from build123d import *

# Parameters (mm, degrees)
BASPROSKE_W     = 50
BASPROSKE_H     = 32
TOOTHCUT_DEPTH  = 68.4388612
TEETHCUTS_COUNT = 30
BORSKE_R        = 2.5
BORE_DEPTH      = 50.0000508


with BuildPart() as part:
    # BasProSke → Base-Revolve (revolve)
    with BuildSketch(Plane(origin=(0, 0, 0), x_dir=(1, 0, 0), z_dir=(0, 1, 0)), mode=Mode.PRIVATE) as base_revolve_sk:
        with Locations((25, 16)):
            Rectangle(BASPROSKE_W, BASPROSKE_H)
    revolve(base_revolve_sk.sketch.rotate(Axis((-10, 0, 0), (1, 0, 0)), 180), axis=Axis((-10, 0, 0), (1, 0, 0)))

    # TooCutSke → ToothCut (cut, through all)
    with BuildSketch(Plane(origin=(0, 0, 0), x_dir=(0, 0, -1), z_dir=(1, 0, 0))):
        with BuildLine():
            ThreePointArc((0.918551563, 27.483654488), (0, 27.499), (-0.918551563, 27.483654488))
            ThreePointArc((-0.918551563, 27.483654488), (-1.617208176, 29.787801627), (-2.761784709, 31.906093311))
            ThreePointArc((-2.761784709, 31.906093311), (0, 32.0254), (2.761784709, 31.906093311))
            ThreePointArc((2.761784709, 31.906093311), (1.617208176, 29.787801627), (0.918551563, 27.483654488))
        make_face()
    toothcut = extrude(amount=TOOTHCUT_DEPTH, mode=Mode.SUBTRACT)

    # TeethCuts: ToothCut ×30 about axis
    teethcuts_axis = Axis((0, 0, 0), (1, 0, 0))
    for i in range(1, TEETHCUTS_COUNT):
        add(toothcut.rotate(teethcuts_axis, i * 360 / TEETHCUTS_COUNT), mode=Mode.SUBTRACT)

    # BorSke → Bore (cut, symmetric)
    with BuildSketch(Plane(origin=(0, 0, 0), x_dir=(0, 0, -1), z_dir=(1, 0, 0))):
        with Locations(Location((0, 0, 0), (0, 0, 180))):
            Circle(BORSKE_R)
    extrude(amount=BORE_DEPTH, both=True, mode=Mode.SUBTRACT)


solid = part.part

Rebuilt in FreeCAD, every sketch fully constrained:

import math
import FreeCAD as App
import Part
import Sketcher
Q = App.Units.Quantity

doc = App.newDocument("Part")
body = doc.addObject("PartDesign::Body", "Body")

# Sketch on XZ plane
sketch1 = body.newObject("Sketcher::SketchObject", "Sketch")
sketch1.AttachmentSupport = (doc.getObject("XZ_Plane"), [""])
sketch1.MapMode = "FlatFace"
sketch1.addGeometry(Part.LineSegment(App.Vector(0, -32, 0), App.Vector(0, 0, 0)), False)
sketch1.addGeometry(Part.LineSegment(App.Vector(0, 0, 0), App.Vector(50, 0, 0)), False)
sketch1.addGeometry(Part.LineSegment(App.Vector(50, 0, 0), App.Vector(50, -32, 0)), False)
sketch1.addGeometry(Part.LineSegment(App.Vector(50, -32, 0), App.Vector(0, -32, 0)), False)
sketch1.addConstraint(Sketcher.Constraint("Coincident", 0, 2, 1, 1))
sketch1.addConstraint(Sketcher.Constraint("Coincident", 1, 2, 2, 1))
sketch1.addConstraint(Sketcher.Constraint("Coincident", 2, 2, 3, 1))
sketch1.addConstraint(Sketcher.Constraint("Coincident", 3, 2, 0, 1))
sketch1.addConstraint(Sketcher.Constraint("Vertical", 0))
sketch1.addConstraint(Sketcher.Constraint("Horizontal", 1))
sketch1.addConstraint(Sketcher.Constraint("Vertical", 2))
sketch1.addConstraint(Sketcher.Constraint("Horizontal", 3))
sketch1.addConstraint(Sketcher.Constraint("Coincident", 0, 2, -1, 1))
sketch1.addConstraint(Sketcher.Constraint("DistanceX", 1, 1, 1, 2, Q("50 mm")))
sketch1.addConstraint(Sketcher.Constraint("DistanceY", 0, 1, 0, 2, Q("32 mm")))
revolution = body.newObject("PartDesign::Revolution", "Revolution")
revolution.Profile = sketch1
revolution.ReferenceAxis = (sketch1, ["H_Axis"])
revolution.Angle = 360

# Sketch on YZ plane
sketch2 = body.newObject("Sketcher::SketchObject", "Sketch001")
sketch2.AttachmentSupport = (doc.getObject("YZ_Plane"), [""])
sketch2.MapMode = "FlatFace"
sketch2.addGeometry(Part.ArcOfCircle(Part.Circle(App.Vector(0, 0, 0), App.Vector(0, 0, 1), 27.5), math.radians(-1.91), math.radians(1.91)), False)
sketch2.addGeometry(Part.ArcOfCircle(Part.Circle(App.Vector(25.2, -12.7, 0), App.Vector(0, 0, 1), 12), math.radians(56), math.radians(79)), False)
sketch2.addGeometry(Part.ArcOfCircle(Part.Circle(App.Vector(0, 0, 0), App.Vector(0, 0, 1), 32), math.radians(-4.95), math.radians(4.95)), False)
sketch2.addGeometry(Part.ArcOfCircle(Part.Circle(App.Vector(25.2, 12.7, 0), App.Vector(0, 0, 1), 12), math.radians(-79), math.radians(-56)), False)
sketch2.addConstraint(Sketcher.Constraint("Coincident", 0, 1, 1, 2))
sketch2.addConstraint(Sketcher.Constraint("Coincident", 1, 1, 2, 1))
sketch2.addConstraint(Sketcher.Constraint("Coincident", 2, 2, 3, 2))
sketch2.addConstraint(Sketcher.Constraint("Coincident", 3, 1, 0, 2))
sketch2.addConstraint(Sketcher.Constraint("Coincident", 0, 3, -1, 1))
sketch2.addConstraint(Sketcher.Constraint("Coincident", 2, 3, -1, 1))
sketch2.addConstraint(Sketcher.Constraint("Equal", 1, 3))
sketch2.addConstraint(Sketcher.Constraint("Symmetric", 1, 3, 3, 3, -1))
sketch2.addConstraint(Sketcher.Constraint("Radius", 1, Q("12 mm")))
sketch2.addConstraint(Sketcher.Constraint("Radius", 0, Q("27.499 mm")))
sketch2.addConstraint(Sketcher.Constraint("Radius", 2, Q("32.0254 mm")))
sketch2.addConstraint(Sketcher.Constraint("DistanceY", 1, 3, -1, 1, Q("12.693642 mm")))
sketch2.addConstraint(Sketcher.Constraint("DistanceY", 0, 1, -1, 1, Q("0.918552 mm")))
pocket1 = body.newObject("PartDesign::Pocket", "Pocket")
pocket1.Profile = sketch2
pocket1.Type = "ThroughAll"
pocket1.Reversed = True
doc.recompute()

polarpattern = body.newObject("PartDesign::PolarPattern", "PolarPattern")
polarpattern.Originals = [pocket1]
polarpattern.Axis = (doc.getObject("X_Axis"), [""])
polarpattern.Angle = 360
polarpattern.Occurrences = 30
body.Tip = polarpattern

# Sketch on YZ plane
sketch3 = body.newObject("Sketcher::SketchObject", "Sketch002")
sketch3.AttachmentSupport = (doc.getObject("YZ_Plane"), [""])
sketch3.MapMode = "FlatFace"
sketch3.addGeometry(Part.Circle(App.Vector(0, 0, 0), App.Vector(0, 0, 1), 2.5), False)
sketch3.addConstraint(Sketcher.Constraint("Coincident", 0, 3, -1, 1))
sketch3.addConstraint(Sketcher.Constraint("Diameter", 0, Q("5 mm")))
pocket2 = body.newObject("PartDesign::Pocket", "Pocket001")
pocket2.Profile = sketch3
pocket2.Length = 100.000102
pocket2.Midplane = True

doc.recompute()
